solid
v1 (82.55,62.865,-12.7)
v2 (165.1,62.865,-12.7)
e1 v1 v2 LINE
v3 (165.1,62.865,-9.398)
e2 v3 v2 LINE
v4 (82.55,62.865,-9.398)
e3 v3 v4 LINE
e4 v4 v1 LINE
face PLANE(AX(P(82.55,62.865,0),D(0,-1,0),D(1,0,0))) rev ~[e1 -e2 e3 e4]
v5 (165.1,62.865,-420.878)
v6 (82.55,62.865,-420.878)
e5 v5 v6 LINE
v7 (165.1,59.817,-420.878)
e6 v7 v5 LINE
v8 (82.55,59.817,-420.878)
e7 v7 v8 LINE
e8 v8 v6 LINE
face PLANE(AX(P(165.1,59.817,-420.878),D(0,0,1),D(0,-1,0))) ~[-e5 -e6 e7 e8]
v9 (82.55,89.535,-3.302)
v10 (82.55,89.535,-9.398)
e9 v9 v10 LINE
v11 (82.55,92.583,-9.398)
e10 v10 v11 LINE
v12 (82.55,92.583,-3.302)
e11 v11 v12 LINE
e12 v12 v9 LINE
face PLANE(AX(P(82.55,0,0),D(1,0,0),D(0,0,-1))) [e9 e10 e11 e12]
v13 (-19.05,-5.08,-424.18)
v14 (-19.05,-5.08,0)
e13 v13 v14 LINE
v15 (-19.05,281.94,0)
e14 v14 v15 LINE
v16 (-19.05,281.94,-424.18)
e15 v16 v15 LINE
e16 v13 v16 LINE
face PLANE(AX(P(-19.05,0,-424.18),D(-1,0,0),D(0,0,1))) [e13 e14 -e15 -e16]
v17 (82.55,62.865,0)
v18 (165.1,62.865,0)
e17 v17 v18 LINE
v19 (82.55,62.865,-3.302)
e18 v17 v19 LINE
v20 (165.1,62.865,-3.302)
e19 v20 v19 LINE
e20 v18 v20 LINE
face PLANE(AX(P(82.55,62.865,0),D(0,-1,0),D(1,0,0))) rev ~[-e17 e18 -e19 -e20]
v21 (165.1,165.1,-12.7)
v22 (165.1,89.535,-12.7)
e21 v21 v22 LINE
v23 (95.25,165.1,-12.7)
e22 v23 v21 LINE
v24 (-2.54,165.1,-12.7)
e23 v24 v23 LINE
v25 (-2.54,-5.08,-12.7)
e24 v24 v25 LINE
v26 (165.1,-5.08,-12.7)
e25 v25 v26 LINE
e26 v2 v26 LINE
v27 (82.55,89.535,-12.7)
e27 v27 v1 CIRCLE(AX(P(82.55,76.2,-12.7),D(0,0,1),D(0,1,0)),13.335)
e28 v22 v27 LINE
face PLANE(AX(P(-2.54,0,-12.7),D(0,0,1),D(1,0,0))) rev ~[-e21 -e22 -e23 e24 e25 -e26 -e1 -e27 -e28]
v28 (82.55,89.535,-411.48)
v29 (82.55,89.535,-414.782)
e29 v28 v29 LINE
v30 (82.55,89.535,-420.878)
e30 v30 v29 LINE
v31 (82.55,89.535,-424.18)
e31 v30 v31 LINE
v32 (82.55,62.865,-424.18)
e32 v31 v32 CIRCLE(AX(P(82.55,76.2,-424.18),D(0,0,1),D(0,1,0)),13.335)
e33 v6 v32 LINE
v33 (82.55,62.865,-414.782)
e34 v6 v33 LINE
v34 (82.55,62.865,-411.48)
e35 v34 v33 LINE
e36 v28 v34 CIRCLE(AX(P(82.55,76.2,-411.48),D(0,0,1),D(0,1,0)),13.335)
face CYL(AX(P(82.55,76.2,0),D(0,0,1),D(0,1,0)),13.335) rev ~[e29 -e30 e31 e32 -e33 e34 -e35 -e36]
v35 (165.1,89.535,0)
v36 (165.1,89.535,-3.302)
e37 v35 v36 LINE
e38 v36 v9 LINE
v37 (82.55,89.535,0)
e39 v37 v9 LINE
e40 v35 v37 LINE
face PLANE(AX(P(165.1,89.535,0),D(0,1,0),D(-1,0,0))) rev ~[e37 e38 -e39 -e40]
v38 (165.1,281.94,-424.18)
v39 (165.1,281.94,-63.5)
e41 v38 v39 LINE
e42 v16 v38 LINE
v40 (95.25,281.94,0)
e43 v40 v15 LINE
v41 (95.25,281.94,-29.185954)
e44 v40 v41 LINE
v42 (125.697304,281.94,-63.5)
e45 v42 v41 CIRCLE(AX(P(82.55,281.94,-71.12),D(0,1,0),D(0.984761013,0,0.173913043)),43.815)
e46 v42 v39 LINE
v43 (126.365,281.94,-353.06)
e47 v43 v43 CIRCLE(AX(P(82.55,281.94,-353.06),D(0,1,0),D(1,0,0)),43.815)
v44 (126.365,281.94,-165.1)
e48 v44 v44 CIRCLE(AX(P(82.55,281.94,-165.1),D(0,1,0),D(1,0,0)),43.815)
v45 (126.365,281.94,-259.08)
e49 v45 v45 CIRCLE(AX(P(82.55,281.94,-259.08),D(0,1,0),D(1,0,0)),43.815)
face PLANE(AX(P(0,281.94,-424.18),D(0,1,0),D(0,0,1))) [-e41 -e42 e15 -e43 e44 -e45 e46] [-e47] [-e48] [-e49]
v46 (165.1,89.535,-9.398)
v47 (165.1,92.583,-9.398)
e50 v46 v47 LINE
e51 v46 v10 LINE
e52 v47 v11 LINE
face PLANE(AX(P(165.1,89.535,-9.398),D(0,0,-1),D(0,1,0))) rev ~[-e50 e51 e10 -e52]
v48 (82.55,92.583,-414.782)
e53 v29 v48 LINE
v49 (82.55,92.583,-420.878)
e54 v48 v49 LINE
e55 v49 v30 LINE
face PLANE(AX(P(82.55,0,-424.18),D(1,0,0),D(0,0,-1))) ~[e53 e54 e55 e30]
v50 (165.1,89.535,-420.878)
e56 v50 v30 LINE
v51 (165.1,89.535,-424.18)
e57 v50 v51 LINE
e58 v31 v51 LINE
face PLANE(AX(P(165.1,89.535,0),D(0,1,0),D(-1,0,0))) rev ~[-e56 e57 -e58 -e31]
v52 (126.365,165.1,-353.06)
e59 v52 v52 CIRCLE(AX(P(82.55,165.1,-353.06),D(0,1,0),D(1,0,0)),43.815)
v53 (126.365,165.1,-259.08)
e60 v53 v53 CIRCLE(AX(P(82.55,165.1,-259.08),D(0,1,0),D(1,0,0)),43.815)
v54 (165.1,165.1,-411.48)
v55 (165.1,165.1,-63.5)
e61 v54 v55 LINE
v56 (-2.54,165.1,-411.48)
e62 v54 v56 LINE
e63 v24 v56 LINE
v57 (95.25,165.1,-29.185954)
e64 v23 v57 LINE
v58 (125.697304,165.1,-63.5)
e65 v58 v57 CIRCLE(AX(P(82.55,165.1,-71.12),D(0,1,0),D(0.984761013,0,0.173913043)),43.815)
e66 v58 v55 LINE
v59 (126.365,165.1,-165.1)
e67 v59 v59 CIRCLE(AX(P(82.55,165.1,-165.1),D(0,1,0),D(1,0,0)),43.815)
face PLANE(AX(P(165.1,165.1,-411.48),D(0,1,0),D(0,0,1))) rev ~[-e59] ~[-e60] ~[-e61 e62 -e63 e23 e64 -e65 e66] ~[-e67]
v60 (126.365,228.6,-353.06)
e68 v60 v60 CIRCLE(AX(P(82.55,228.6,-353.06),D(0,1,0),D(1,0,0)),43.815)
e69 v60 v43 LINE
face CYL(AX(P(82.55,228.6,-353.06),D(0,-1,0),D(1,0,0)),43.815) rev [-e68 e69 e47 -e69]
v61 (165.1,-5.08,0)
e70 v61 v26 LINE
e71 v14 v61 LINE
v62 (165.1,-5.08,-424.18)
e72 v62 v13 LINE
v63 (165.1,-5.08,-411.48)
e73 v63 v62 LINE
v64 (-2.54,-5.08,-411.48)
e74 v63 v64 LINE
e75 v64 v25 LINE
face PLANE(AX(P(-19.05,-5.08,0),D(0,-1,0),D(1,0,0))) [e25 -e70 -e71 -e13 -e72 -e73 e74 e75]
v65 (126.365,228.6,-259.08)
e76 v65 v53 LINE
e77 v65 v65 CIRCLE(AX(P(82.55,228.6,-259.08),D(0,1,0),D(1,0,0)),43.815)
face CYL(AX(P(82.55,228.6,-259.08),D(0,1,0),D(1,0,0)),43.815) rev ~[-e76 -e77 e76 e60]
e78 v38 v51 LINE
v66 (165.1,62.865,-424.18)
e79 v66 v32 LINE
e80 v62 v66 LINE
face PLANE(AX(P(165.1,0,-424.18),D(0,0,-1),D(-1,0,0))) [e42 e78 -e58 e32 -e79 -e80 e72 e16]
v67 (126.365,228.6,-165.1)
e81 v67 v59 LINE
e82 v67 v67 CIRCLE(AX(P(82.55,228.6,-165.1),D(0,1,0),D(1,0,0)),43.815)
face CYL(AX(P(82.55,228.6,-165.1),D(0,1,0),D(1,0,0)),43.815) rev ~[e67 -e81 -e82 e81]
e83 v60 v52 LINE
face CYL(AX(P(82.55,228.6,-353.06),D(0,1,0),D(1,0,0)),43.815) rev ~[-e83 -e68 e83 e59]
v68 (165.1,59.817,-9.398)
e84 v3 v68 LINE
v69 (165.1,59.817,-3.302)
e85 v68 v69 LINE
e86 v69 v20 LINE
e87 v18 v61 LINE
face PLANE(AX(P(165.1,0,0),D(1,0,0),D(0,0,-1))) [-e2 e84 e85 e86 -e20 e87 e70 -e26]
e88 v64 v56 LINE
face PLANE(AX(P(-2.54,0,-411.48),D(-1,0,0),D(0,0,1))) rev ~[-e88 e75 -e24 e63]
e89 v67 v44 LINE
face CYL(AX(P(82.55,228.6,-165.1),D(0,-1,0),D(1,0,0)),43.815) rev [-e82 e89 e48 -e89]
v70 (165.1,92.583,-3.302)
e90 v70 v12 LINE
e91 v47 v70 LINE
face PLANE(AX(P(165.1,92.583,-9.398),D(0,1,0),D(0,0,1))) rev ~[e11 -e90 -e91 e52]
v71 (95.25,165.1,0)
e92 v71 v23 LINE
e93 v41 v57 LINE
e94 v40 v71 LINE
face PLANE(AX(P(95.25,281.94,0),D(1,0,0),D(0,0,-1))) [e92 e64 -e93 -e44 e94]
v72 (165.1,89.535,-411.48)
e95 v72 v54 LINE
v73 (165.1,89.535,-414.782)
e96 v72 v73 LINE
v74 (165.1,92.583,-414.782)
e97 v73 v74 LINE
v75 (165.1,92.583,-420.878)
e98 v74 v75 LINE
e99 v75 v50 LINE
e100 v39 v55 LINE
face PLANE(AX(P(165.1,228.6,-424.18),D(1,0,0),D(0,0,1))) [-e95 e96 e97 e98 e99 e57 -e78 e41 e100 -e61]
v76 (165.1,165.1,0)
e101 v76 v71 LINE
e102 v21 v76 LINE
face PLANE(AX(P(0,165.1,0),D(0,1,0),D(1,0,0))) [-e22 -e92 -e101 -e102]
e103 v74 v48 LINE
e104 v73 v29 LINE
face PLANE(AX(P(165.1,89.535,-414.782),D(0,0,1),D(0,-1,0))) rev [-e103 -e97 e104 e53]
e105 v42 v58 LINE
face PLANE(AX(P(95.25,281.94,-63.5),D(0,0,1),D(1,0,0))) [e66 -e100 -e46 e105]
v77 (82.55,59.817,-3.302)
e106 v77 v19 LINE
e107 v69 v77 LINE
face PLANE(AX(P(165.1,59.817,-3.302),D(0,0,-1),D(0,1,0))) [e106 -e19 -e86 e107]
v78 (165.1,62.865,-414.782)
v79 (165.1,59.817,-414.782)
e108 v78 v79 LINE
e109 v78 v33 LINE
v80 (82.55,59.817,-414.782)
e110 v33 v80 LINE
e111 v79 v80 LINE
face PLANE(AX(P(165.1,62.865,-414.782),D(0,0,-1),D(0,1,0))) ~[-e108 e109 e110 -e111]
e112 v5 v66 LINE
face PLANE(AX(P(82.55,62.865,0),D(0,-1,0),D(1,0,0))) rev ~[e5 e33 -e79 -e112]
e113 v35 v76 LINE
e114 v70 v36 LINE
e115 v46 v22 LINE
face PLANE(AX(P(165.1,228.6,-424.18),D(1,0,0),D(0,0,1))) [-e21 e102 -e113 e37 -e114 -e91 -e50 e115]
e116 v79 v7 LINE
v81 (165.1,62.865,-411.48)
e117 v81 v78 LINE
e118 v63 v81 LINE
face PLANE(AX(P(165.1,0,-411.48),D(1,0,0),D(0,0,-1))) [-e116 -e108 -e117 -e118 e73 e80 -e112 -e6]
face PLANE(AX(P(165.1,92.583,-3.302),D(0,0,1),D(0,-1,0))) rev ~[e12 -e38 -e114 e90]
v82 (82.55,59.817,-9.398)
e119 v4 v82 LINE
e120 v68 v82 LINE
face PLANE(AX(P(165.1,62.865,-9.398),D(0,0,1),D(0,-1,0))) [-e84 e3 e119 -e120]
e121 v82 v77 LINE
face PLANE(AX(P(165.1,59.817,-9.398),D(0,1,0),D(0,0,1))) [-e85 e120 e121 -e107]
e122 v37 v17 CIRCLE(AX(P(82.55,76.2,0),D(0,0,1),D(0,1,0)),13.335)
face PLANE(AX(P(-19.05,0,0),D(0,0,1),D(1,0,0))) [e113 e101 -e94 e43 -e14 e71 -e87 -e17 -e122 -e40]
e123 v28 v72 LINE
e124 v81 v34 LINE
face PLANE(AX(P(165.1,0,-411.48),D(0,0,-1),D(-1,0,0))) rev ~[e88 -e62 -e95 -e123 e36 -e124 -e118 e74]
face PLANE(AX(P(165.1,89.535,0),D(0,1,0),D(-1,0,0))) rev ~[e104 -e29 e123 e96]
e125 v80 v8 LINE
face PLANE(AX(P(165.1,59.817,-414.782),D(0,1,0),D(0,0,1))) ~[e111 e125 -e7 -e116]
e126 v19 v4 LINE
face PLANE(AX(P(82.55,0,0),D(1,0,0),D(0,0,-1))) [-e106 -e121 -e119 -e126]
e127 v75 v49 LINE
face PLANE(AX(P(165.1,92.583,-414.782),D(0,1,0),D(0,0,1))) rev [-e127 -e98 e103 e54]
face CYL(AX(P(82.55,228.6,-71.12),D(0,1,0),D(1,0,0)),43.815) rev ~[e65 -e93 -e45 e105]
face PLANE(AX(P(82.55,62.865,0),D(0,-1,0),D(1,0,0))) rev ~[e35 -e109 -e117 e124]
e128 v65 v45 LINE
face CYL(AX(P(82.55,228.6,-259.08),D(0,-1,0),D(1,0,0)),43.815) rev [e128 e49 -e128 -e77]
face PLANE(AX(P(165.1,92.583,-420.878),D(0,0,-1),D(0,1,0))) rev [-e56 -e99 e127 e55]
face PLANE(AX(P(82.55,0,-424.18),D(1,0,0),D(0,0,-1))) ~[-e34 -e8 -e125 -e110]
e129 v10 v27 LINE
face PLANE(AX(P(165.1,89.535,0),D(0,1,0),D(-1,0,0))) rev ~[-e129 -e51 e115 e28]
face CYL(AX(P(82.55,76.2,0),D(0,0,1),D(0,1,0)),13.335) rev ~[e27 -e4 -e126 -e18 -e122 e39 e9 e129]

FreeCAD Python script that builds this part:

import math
import FreeCAD as App
import Part
import Sketcher
from FreeCAD import Vector
Q = App.Units.Quantity


def add_polygon(sketch, points):
    """Adds a closed chain of lines whose ends are joined by coincident constraints."""
    first, n = sketch.GeometryCount, len(points)
    for a, b in zip(points, points[1:] + points[:1]):
        sketch.addGeometry(Part.LineSegment(App.Vector(*a, 0), App.Vector(*b, 0)), False)
    for i in range(n):
        sketch.addConstraint(Sketcher.Constraint("Coincident", first + i, 2, first + (i + 1) % n, 1))

doc = App.newDocument("Part")
body = doc.addObject("PartDesign::Body", "Body")

sketch1 = doc.addObject("Sketcher::SketchObject", "Sketch")
body.addObject(sketch1)
sketch1.AttachmentSupport = (doc.YZ_Plane, [""])
sketch1.MapMode = "FlatFace"
add_polygon(sketch1, [(229, 0), (0, 0), (0, -424), (229, -424)])
sketch1.addConstraint(Sketcher.Constraint("Horizontal", 0))
sketch1.addConstraint(Sketcher.Constraint("Vertical", 1))
sketch1.addConstraint(Sketcher.Constraint("Horizontal", 2))
sketch1.addConstraint(Sketcher.Constraint("Vertical", 3))
sketch1.addConstraint(Sketcher.Constraint("Coincident", 0, 2, -1, 1))
sketch1.addConstraint(Sketcher.Constraint("DistanceX", 0, 2, 0, 1, Q("9 in")))
sketch1.addConstraint(Sketcher.Constraint("DistanceY", 1, 2, 1, 1, Q("16.7 in")))
pad1 = doc.addObject("PartDesign::Pad", "Pad")
body.addObject(pad1)
pad1.Profile = sketch1
pad1.Length = Q("6.5 in")

sketch2 = doc.addObject("Sketcher::SketchObject", "Sketch001")
body.addObject(sketch2)
sketch2.AttachmentSupport = (doc.YZ_Plane, [""])
sketch2.MapMode = "FlatFace"
sketch2.AttachmentOffset = App.Placement(Vector(0, 0, 6.5 * 25.4), App.Rotation())
add_polygon(sketch2, [(165, -13), (0, -13), (0, -411), (165, -411)])
sketch2.addConstraint(Sketcher.Constraint("Horizontal", 0))
sketch2.addConstraint(Sketcher.Constraint("Vertical", 1))
sketch2.addConstraint(Sketcher.Constraint("Horizontal", 2))
sketch2.addConstraint(Sketcher.Constraint("Vertical", 3))
sketch2.addConstraint(Sketcher.Constraint("PointOnObject", 0, 2, -2))
sketch2.addConstraint(Sketcher.Constraint("DistanceX", 0, 2, 0, 1, Q("6.5 in")))
sketch2.addConstraint(Sketcher.Constraint("DistanceY", 1, 2, 1, 1, Q("15.7 in")))
sketch2.addConstraint(Sketcher.Constraint("DistanceY", 0, 2, -1, 1, Q("0.5 in")))
pocket1 = doc.addObject("PartDesign::Pocket", "Pocket")
body.addObject(pocket1)
pocket1.Profile = sketch2
pocket1.Length = Q("5.85 in")

sketch3 = doc.addObject("Sketcher::SketchObject", "Sketch002")
body.addObject(sketch3)
sketch3.AttachmentSupport = (doc.XY_Plane, [""])
sketch3.MapMode = "FlatFace"
sketch3.addGeometry(Part.LineSegment(Vector(165, 63, 0), Vector(165, 90, 0)), False)
sketch3.addGeometry(Part.LineSegment(Vector(165, 90, 0), Vector(83, 90, 0)), False)
sketch3.addGeometry(Part.ArcOfCircle(Part.Circle(Vector(83, 76, 0), Vector(0, 0, 1), 13), math.radians(90), math.radians(270)), False)
sketch3.addGeometry(Part.LineSegment(Vector(83, 63, 0), Vector(165, 63, 0)), False)
sketch3.addConstraint(Sketcher.Constraint("Coincident", 0, 2, 1, 1))
sketch3.addConstraint(Sketcher.Constraint("Tangent", 1, 2, 2, 1))
sketch3.addConstraint(Sketcher.Constraint("Tangent", 2, 2, 3, 1))
sketch3.addConstraint(Sketcher.Constraint("Coincident", 3, 2, 0, 1))
sketch3.addConstraint(Sketcher.Constraint("Vertical", 0))
sketch3.addConstraint(Sketcher.Constraint("Horizontal", 1))
sketch3.addConstraint(Sketcher.Constraint("Horizontal", 3))
sketch3.addConstraint(Sketcher.Constraint("Radius", 2, Q("0.525 in")))
sketch3.addConstraint(Sketcher.Constraint("DistanceY", -1, 1, 2, 3, Q("3 in")))
sketch3.addConstraint(Sketcher.Constraint("DistanceX", 1, 2, 1, 1, Q("3.25 in")))
sketch3.addConstraint(Sketcher.Constraint("DistanceX", -1, 1, 0, 2, Q("6.5 in")))
pocket2 = doc.addObject("PartDesign::Pocket", "Pocket001")
body.addObject(pocket2)
pocket2.Profile = sketch3
pocket2.Length = Q("18 in")

sketch4 = doc.addObject("Sketcher::SketchObject", "Sketch003")
body.addObject(sketch4)
sketch4.AttachmentSupport = (doc.XZ_Plane, [""])
sketch4.MapMode = "FlatFace"
sketch4.AttachmentOffset = App.Placement(Vector(0, 0, -9 * 25.4), App.Rotation())
sketch4.addGeometry(Part.Circle(Vector(83, -353, 0), Vector(0, 0, 1), 44), False)
sketch4.addGeometry(Part.Circle(Vector(83, -259, 0), Vector(0, 0, 1), 44), False)
sketch4.addGeometry(Part.Circle(Vector(83, -71, 0), Vector(0, 0, 1), 44), False)
sketch4.addGeometry(Part.Circle(Vector(83, -165, 0), Vector(0, 0, 1), 44), False)
sketch4.addConstraint(Sketcher.Constraint("Equal", 0, 1))
sketch4.addConstraint(Sketcher.Constraint("Equal", 1, 2))
sketch4.addConstraint(Sketcher.Constraint("Equal", 2, 3))
sketch4.addConstraint(Sketcher.Constraint("Vertical", 0, 3, 1, 3))
sketch4.addConstraint(Sketcher.Constraint("Vertical", 1, 3, 2, 3))
sketch4.addConstraint(Sketcher.Constraint("Vertical", 2, 3, 3, 3))
sketch4.addConstraint(Sketcher.Constraint("Diameter", 0, Q("3.45 in")))
sketch4.addConstraint(Sketcher.Constraint("DistanceY", 0, 3, 1, 3, Q("3.7 in")))
sketch4.addConstraint(Sketcher.Constraint("DistanceY", 1, 3, 3, 3, Q("3.7 in")))
sketch4.addConstraint(Sketcher.Constraint("DistanceY", 3, 3, 2, 3, Q("3.7 in")))
sketch4.addConstraint(Sketcher.Constraint("DistanceX", -1, 1, 0, 3, Q("3.25 in")))
sketch4.addConstraint(Sketcher.Constraint("DistanceY", 0, 3, -1, 1, Q("13.9 in")))
pocket3 = doc.addObject("PartDesign::Pocket", "Pocket002")
body.addObject(pocket3)
pocket3.Profile = sketch4
pocket3.Length = Q("3 in")
pocket3.Reversed = True

sketch5 = doc.addObject("Sketcher::SketchObject", "Sketch004")
body.addObject(sketch5)
sketch5.AttachmentSupport = (doc.XZ_Plane, [""])
sketch5.MapMode = "FlatFace"
sketch5.AttachmentOffset = App.Placement(Vector(0, 0, -9 * 25.4), App.Rotation())
add_polygon(sketch5, [(0, -424), (0, 0), (165, 0), (165, -424)])
sketch5.addGeometry(Part.Circle(Vector(83, -71, 0), Vector(0, 0, 1), 44), False)
sketch5.addGeometry(Part.Circle(Vector(83, -165, 0), Vector(0, 0, 1), 44), False)
sketch5.addGeometry(Part.Circle(Vector(83, -259, 0), Vector(0, 0, 1), 44), False)
sketch5.addGeometry(Part.Circle(Vector(83, -353, 0), Vector(0, 0, 1), 44), False)
sketch5.addConstraint(Sketcher.Constraint("Vertical", 0))
sketch5.addConstraint(Sketcher.Constraint("Horizontal", 1))
sketch5.addConstraint(Sketcher.Constraint("Vertical", 2))
sketch5.addConstraint(Sketcher.Constraint("Horizontal", 3))
sketch5.addConstraint(Sketcher.Constraint("Coincident", 0, 2, -1, 1))
sketch5.addConstraint(Sketcher.Constraint("Equal", 4, 5))
sketch5.addConstraint(Sketcher.Constraint("Equal", 5, 6))
sketch5.addConstraint(Sketcher.Constraint("Equal", 6, 7))
sketch5.addConstraint(Sketcher.Constraint("Vertical", 4, 3, 5, 3))
sketch5.addConstraint(Sketcher.Constraint("Vertical", 5, 3, 6, 3))
sketch5.addConstraint(Sketcher.Constraint("Vertical", 6, 3, 7, 3))
sketch5.addConstraint(Sketcher.Constraint("Diameter", 4, Q("3.45 in")))
sketch5.addConstraint(Sketcher.Constraint("DistanceX", 1, 1, 1, 2, Q("6.5 in")))
sketch5.addConstraint(Sketcher.Constraint("DistanceY", 0, 1, 0, 2, Q("16.7 in")))
sketch5.addConstraint(Sketcher.Constraint("DistanceY", 4, 3, -1, 1, Q("2.8 in")))
sketch5.addConstraint(Sketcher.Constraint("DistanceY", 5, 3, -1, 1, Q("6.5 in")))
sketch5.addConstraint(Sketcher.Constraint("DistanceY", 6, 3, -1, 1, Q("10.2 in")))
sketch5.addConstraint(Sketcher.Constraint("DistanceY", 7, 3, -1, 1, Q("13.9 in")))
sketch5.addConstraint(Sketcher.Constraint("DistanceX", -1, 1, 4, 3, Q("3.25 in")))
pad2 = doc.addObject("PartDesign::Pad", "Pad001")
body.addObject(pad2)
pad2.Profile = sketch5
pad2.Length = Q("2.1 in")
pad2.Reversed = True

sketch6 = doc.addObject("Sketcher::SketchObject", "Sketch005")
body.addObject(sketch6)
sketch6.AttachmentSupport = (doc.YZ_Plane, [""])
sketch6.MapMode = "FlatFace"
add_polygon(sketch6, [(0, -424), (0, 0), (282, 0), (282, -424)])
sketch6.addConstraint(Sketcher.Constraint("Vertical", 0))
sketch6.addConstraint(Sketcher.Constraint("Horizontal", 1))
sketch6.addConstraint(Sketcher.Constraint("Vertical", 2))
sketch6.addConstraint(Sketcher.Constraint("Horizontal", 3))
sketch6.addConstraint(Sketcher.Constraint("Coincident", 0, 2, -1, 1))
sketch6.addConstraint(Sketcher.Constraint("DistanceX", 1, 1, 1, 2, Q("11.1 in")))
sketch6.addConstraint(Sketcher.Constraint("DistanceY", 0, 1, 0, 2, Q("16.7 in")))
pad3 = doc.addObject("PartDesign::Pad", "Pad002")
body.addObject(pad3)
pad3.Profile = sketch6
pad3.Length = Q("0.75 in")
pad3.Reversed = True

sketch7 = doc.addObject("Sketcher::SketchObject", "Sketch006")
body.addObject(sketch7)
sketch7.AttachmentSupport = (doc.YZ_Plane, [""])
sketch7.MapMode = "FlatFace"
sketch7.AttachmentOffset = App.Placement(Vector(0, 0, 0.65 * 25.4), App.Rotation())
add_polygon(sketch7, [(0, -13), (0, -411), (165, -411), (165, -13)])
sketch7.addConstraint(Sketcher.Constraint("Vertical", 0))
sketch7.addConstraint(Sketcher.Constraint("Horizontal", 1))
sketch7.addConstraint(Sketcher.Constraint("Vertical", 2))
sketch7.addConstraint(Sketcher.Constraint("Horizontal", 3))
sketch7.addConstraint(Sketcher.Constraint("PointOnObject", 0, 2, -2))
sketch7.addConstraint(Sketcher.Constraint("DistanceX", 1, 1, 1, 2, Q("6.5 in")))
sketch7.addConstraint(Sketcher.Constraint("DistanceY", 0, 2, 0, 1, Q("15.7 in")))
sketch7.addConstraint(Sketcher.Constraint("DistanceY", 0, 2, -1, 1, Q("16.2 in")))
pocket4 = doc.addObject("PartDesign::Pocket", "Pocket003")
body.addObject(pocket4)
pocket4.Profile = sketch7
pocket4.Length = Q("0.75 in")

sketch8 = doc.addObject("Sketcher::SketchObject", "Sketch007")
body.addObject(sketch8)
sketch8.AttachmentSupport = (doc.YZ_Plane, [""])
sketch8.MapMode = "FlatFace"
sketch8.AttachmentOffset = App.Placement(Vector(0, 0, 6.5 * 25.4), App.Rotation())
add_polygon(sketch8, [(92.6, -3.3), (89.5, -3.3), (89.5, -9.4), (92.6, -9.4)])
add_polygon(sketch8, [(62.9, -9.4), (62.9, -3.3), (59.8, -3.3), (59.8, -9.4)])
sketch8.addConstraint(Sketcher.Constraint("Horizontal", 0))
sketch8.addConstraint(Sketcher.Constraint("Vertical", 1))
sketch8.addConstraint(Sketcher.Constraint("Horizontal", 2))
sketch8.addConstraint(Sketcher.Constraint("Vertical", 3))
sketch8.addConstraint(Sketcher.Constraint("Vertical", 4))
sketch8.addConstraint(Sketcher.Constraint("Horizontal", 5))
sketch8.addConstraint(Sketcher.Constraint("Vertical", 6))
sketch8.addConstraint(Sketcher.Constraint("Horizontal", 7))
sketch8.addConstraint(Sketcher.Constraint("Horizontal", 3, 2, 4, 2))
sketch8.addConstraint(Sketcher.Constraint("Horizontal", 2, 2, 6, 2))
sketch8.addConstraint(Sketcher.Constraint("Equal", 2, 5))
sketch8.addConstraint(Sketcher.Constraint("DistanceX", 0, 2, 0, 1, Q("0.12 in")))
sketch8.addConstraint(Sketcher.Constraint("DistanceY", 1, 2, 1, 1, Q("0.24 in")))
sketch8.addConstraint(Sketcher.Constraint("DistanceY", 0, 2, -1, 1, Q("0.13 in")))
sketch8.addConstraint(Sketcher.Constraint("DistanceX", 4, 2, 0, 2, Q("1.05 in")))
sketch8.addConstraint(Sketcher.Constraint("DistanceX", -1, 1, 0, 2, Q("3.525 in")))
pocket5 = doc.addObject("PartDesign::Pocket", "Pocket004")
body.addObject(pocket5)
pocket5.Profile = sketch8
pocket5.Length = Q("3.25 in")

sketch9 = doc.addObject("Sketcher::SketchObject", "Sketch008")
body.addObject(sketch9)
sketch9.AttachmentSupport = (doc.XZ_Plane, [""])
sketch9.MapMode = "FlatFace"
add_polygon(sketch9, [(-3, -411), (-3, -13), (165, -13), (165, 0), (-19, 0), (-19, -424), (165, -424), (165, -411)])
sketch9.addConstraint(Sketcher.Constraint("Vertical", 0))
sketch9.addConstraint(Sketcher.Constraint("Horizontal", 1))
sketch9.addConstraint(Sketcher.Constraint("Vertical", 2))
sketch9.addConstraint(Sketcher.Constraint("Horizontal", 3))
sketch9.addConstraint(Sketcher.Constraint("Vertical", 4))
sketch9.addConstraint(Sketcher.Constraint("Horizontal", 5))
sketch9.addConstraint(Sketcher.Constraint("Vertical", 6))
sketch9.addConstraint(Sketcher.Constraint("Horizontal", 7))
sketch9.addConstraint(Sketcher.Constraint("PointOnObject", 2, 2, -1))
sketch9.addConstraint(Sketcher.Constraint("Vertical", 2, 2, 5, 2))
sketch9.addConstraint(Sketcher.Constraint("Equal", 2, 6))
sketch9.addConstraint(Sketcher.Constraint("DistanceX", 1, 1, 1, 2, Q("6.6 in")))
sketch9.addConstraint(Sketcher.Constraint("DistanceY", 0, 1, 0, 2, Q("15.7 in")))
sketch9.addConstraint(Sketcher.Constraint("DistanceY", 2, 1, 2, 2, Q("0.5 in")))
sketch9.addConstraint(Sketcher.Constraint("DistanceX", 3, 2, 3, 1, Q("7.25 in")))
sketch9.addConstraint(Sketcher.Constraint("DistanceX", 0, 2, -1, 1, Q("0.1 in")))
pad4 = doc.addObject("PartDesign::Pad", "Pad003")
body.addObject(pad4)
pad4.Profile = sketch9
pad4.Length = Q("0.2 in")
doc.recompute()

datumplane = doc.addObject("PartDesign::Plane", "DatumPlane")
body.addObject(datumplane)
datumplane.AttachmentSupport = (doc.XY_Plane, [""])
datumplane.MapMode = "FlatFace"
datumplane.AttachmentOffset = App.Placement(Vector(0, 0, -8.35 * 25.4), App.Rotation())
mirrored = doc.addObject("PartDesign::Mirrored", "Mirrored")
body.addObject(mirrored)
mirrored.Originals = [pocket5]
mirrored.MirrorPlane = (datumplane, [""])
body.Tip = mirrored

sketch10 = doc.addObject("Sketcher::SketchObject", "Sketch009")
body.addObject(sketch10)
sketch10.AttachmentSupport = (doc.XZ_Plane, [""])
sketch10.MapMode = "FlatFace"
sketch10.AttachmentOffset = App.Placement(Vector(0, 0, -11.1 * 25.4), App.Rotation())
add_polygon(sketch10, [(95, 0), (165, 0), (165, -64), (95, -64)])
sketch10.addConstraint(Sketcher.Constraint("Horizontal", 0))
sketch10.addConstraint(Sketcher.Constraint("Vertical", 1))
sketch10.addConstraint(Sketcher.Constraint("Horizontal", 2))
sketch10.addConstraint(Sketcher.Constraint("Vertical", 3))
sketch10.addConstraint(Sketcher.Constraint("PointOnObject", 0, 2, -1))
sketch10.addConstraint(Sketcher.Constraint("DistanceY", 1, 2, 1, 1, Q("2.5 in")))
sketch10.addConstraint(Sketcher.Constraint("DistanceX", 0, 1, 0, 2, Q("2.75 in")))
sketch10.addConstraint(Sketcher.Constraint("DistanceX", -1, 1, 0, 2, Q("6.5 in")))
pocket6 = doc.addObject("PartDesign::Pocket", "Pocket005")
body.addObject(pocket6)
pocket6.Profile = sketch10
pocket6.Length = Q("4.6 in")
pocket6.Reversed = True

doc.recompute()
